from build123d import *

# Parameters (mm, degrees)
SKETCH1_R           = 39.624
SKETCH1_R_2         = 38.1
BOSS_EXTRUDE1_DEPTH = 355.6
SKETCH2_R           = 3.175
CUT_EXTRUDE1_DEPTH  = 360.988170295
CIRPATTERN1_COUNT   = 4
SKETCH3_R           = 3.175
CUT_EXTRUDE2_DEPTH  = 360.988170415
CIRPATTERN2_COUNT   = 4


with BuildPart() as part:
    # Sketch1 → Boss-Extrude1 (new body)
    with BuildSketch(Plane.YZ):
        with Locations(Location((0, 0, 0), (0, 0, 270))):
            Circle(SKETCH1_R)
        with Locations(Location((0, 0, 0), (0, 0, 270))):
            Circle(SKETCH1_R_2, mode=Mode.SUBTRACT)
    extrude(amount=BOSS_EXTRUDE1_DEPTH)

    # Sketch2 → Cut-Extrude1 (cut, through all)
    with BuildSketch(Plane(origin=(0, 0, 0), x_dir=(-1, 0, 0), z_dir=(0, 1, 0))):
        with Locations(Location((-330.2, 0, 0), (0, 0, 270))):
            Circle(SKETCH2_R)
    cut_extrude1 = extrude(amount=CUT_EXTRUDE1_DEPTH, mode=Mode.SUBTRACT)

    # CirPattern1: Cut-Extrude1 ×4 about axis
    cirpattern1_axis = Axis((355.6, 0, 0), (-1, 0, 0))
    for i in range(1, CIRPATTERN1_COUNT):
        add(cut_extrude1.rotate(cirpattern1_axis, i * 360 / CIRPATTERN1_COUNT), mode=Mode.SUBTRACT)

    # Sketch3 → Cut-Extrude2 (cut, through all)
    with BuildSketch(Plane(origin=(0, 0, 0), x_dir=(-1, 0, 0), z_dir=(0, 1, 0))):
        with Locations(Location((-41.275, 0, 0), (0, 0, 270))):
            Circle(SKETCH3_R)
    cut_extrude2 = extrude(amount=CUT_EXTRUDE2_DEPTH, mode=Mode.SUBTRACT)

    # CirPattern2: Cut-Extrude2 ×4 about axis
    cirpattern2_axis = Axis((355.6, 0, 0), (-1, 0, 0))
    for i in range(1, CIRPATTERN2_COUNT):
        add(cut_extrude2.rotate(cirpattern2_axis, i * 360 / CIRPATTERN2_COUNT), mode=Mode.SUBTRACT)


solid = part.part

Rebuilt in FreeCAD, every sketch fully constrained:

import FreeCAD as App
import Part
import Sketcher
Q = App.Units.Quantity

doc = App.newDocument("Part")
body = doc.addObject("PartDesign::Body", "Body")

# Sketch on YZ plane
sketch1 = body.newObject("Sketcher::SketchObject", "Sketch")
sketch1.AttachmentSupport = (doc.getObject("YZ_Plane"), [""])
sketch1.MapMode = "FlatFace"
sketch1.addGeometry([
    Part.Circle(App.Vector(0, 0, 0), App.Vector(0, 0, 1), 40),
    Part.Circle(App.Vector(0, 0, 0), App.Vector(0, 0, 1), 38),
], False)
sketch1.addConstraint([
    Sketcher.Constraint("Coincident", 0, 3, -1, 1),
    Sketcher.Constraint("Coincident", 1, 3, -1, 1),
    Sketcher.Constraint("Diameter", 1, Q("3 in")),
    Sketcher.Constraint("Diameter", 0, Q("3.12 in")),
])
pad1 = body.newObject("PartDesign::Pad", "Pad")
pad1.Profile = sketch1
pad1.Length = Q("14 in")

# Sketch on XZ plane
sketch2 = body.newObject("Sketcher::SketchObject", "Sketch001")
sketch2.AttachmentSupport = (doc.getObject("XZ_Plane"), [""])
sketch2.MapMode = "FlatFace"
sketch2.addGeometry(Part.Circle(App.Vector(330.2, 0, 0), App.Vector(0, 0, 1), 3.2), False)
sketch2.addConstraint([
    Sketcher.Constraint("PointOnObject", 0, 3, -1),
    Sketcher.Constraint("Diameter", 0, Q("0.25 in")),
    Sketcher.Constraint("DistanceX", -1, 1, 0, 3, Q("13 in")),
])
pocket1 = body.newObject("PartDesign::Pocket", "Pocket")
pocket1.Profile = sketch2
pocket1.Type = "ThroughAll"
doc.recompute()

polarpattern = body.newObject("PartDesign::PolarPattern", "PolarPattern")
polarpattern.Originals = [pocket1]
polarpattern.Axis = (doc.getObject("X_Axis"), [""])
polarpattern.Angle = 360
polarpattern.Occurrences = 4
body.Tip = polarpattern

# Sketch on XZ plane
sketch3 = body.newObject("Sketcher::SketchObject", "Sketch002")
sketch3.AttachmentSupport = (doc.getObject("XZ_Plane"), [""])
sketch3.MapMode = "FlatFace"
sketch3.addGeometry(Part.Circle(App.Vector(41.3, 0, 0), App.Vector(0, 0, 1), 3.2), False)
sketch3.addConstraint([
    Sketcher.Constraint("PointOnObject", 0, 3, -1),
    Sketcher.Constraint("Diameter", 0, Q("0.25 in")),
    Sketcher.Constraint("DistanceX", -1, 1, 0, 3, Q("1.625 in")),
])
pocket2 = body.newObject("PartDesign::Pocket", "Pocket001")
pocket2.Profile = sketch3
pocket2.Type = "ThroughAll"
doc.recompute()

polarpattern2 = body.newObject("PartDesign::PolarPattern", "PolarPattern001")
polarpattern2.Originals = [pocket2]
polarpattern2.Axis = (doc.getObject("X_Axis"), [""])
polarpattern2.Angle = 360
polarpattern2.Occurrences = 4
body.Tip = polarpattern2

doc.recompute()
